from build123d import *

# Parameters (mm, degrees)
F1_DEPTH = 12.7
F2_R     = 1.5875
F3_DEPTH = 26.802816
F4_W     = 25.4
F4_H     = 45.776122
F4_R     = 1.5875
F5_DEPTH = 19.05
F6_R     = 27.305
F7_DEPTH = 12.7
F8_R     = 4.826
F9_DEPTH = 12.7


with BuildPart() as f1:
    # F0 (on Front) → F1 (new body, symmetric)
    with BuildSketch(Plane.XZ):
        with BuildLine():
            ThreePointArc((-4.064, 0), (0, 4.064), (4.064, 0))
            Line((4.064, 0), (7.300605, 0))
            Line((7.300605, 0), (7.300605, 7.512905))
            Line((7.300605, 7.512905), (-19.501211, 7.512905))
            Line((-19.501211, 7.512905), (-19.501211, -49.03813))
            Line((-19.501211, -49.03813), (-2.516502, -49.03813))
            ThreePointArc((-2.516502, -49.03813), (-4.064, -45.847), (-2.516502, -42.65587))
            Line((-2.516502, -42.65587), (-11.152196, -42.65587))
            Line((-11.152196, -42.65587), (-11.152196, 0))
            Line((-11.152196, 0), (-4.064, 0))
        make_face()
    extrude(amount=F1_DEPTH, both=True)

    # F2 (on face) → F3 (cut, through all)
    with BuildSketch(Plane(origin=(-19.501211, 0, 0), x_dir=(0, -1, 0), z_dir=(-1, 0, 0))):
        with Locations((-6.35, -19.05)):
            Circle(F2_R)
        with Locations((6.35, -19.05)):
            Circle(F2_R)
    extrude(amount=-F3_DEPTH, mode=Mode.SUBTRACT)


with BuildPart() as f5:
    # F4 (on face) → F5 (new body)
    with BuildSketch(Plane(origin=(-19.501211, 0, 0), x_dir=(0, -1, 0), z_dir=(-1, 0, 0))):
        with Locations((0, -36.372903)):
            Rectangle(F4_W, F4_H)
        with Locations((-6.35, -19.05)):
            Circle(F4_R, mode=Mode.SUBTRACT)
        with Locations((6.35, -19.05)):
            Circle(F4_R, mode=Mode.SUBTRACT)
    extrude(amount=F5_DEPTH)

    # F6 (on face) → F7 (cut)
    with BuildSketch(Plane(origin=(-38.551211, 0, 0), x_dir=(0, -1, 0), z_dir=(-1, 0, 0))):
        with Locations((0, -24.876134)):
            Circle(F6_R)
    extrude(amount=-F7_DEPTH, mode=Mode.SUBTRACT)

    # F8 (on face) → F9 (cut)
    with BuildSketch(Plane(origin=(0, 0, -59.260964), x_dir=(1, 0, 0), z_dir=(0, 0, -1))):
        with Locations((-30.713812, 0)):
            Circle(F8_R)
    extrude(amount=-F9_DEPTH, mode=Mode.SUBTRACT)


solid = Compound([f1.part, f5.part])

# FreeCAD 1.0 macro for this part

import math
import FreeCAD as App
import Part
import Sketcher
Q = App.Units.Quantity


def add_polygon(sketch, points):
    """Adds a closed chain of lines whose ends are joined by coincident constraints."""
    first, n = sketch.GeometryCount, len(points)
    for a, b in zip(points, points[1:] + points[:1]):
        sketch.addGeometry(Part.LineSegment(App.Vector(*a, 0), App.Vector(*b, 0)), False)
    for i in range(n):
        sketch.addConstraint(Sketcher.Constraint("Coincident", first + i, 2, first + (i + 1) % n, 1))

doc = App.newDocument("Part")
params = doc.addObject("Spreadsheet::Sheet", "Params")
for row, (alias, value) in enumerate([
    ("sketch1_radius", "0.16 in"),
    ("pad1_length", "1 in"),
    ("sketch2_diameter", "0.125 in"),
    ("sketch3_width", "1 in"),
    ("sketch3_diameter", "0.125 in"),
    ("pad2_length", "0.75 in"),
    ("sketch4_diameter", "2.15 in"),
    ("pocket2_length", "0.5 in"),
    ("sketch5_diameter", "0.38 in"),
    ("pocket3_length", "0.5 in"),
], start=1):
    params.set(f"A{row}", alias)
    params.set(f"B{row}", "=" + value)
    params.setAlias(f"B{row}", alias)

body = doc.addObject("PartDesign::Body", "Body")

sketch1 = body.newObject("Sketcher::SketchObject", "Sketch")
sketch1.AttachmentSupport = (doc.getObject("XZ_Plane"), [""])
sketch1.MapMode = "FlatFace"
sketch1.addGeometry([
    Part.ArcOfCircle(Part.Circle(App.Vector(0, 0, 0), App.Vector(0, 0, 1), 4.1), math.radians(0), math.radians(180)),
    Part.LineSegment(App.Vector(4.1, 0, 0), App.Vector(7.3, 0, 0)),
    Part.LineSegment(App.Vector(7.3, 0, 0), App.Vector(7.3, 7.5, 0)),
    Part.LineSegment(App.Vector(7.3, 7.5, 0), App.Vector(-19.5, 7.5, 0)),
    Part.LineSegment(App.Vector(-19.5, 7.5, 0), App.Vector(-19.5, -49, 0)),
    Part.LineSegment(App.Vector(-19.5, -49, 0), App.Vector(-2.5, -49, 0)),
    Part.ArcOfCircle(Part.Circle(App.Vector(0, -45.8, 0), App.Vector(0, 0, 1), 4.1), math.radians(128), math.radians(232)),
    Part.LineSegment(App.Vector(-2.5, -42.7, 0), App.Vector(-11.2, -42.7, 0)),
    Part.LineSegment(App.Vector(-11.2, -42.7, 0), App.Vector(-11.2, 0, 0)),
    Part.LineSegment(App.Vector(-11.2, 0, 0), App.Vector(-4.1, 0, 0)),
], False)
sketch1.addConstraint([
    Sketcher.Constraint("Coincident", 0, 1, 1, 1),
    Sketcher.Constraint("Coincident", 1, 2, 2, 1),
    Sketcher.Constraint("Coincident", 2, 2, 3, 1),
    Sketcher.Constraint("Coincident", 3, 2, 4, 1),
    Sketcher.Constraint("Coincident", 4, 2, 5, 1),
    Sketcher.Constraint("Coincident", 5, 2, 6, 2),
    Sketcher.Constraint("Coincident", 6, 1, 7, 1),
    Sketcher.Constraint("Coincident", 7, 2, 8, 1),
    Sketcher.Constraint("Coincident", 8, 2, 9, 1),
    Sketcher.Constraint("Coincident", 9, 2, 0, 2),
    Sketcher.Constraint("Horizontal", 1),
    Sketcher.Constraint("Vertical", 2),
    Sketcher.Constraint("Horizontal", 3),
    Sketcher.Constraint("Vertical", 4),
    Sketcher.Constraint("Horizontal", 5),
    Sketcher.Constraint("Horizontal", 7),
    Sketcher.Constraint("Vertical", 8),
    Sketcher.Constraint("Horizontal", 9),
    Sketcher.Constraint("Coincident", 0, 3, -1, 1),
    Sketcher.Constraint("Equal", 0, 6),
    Sketcher.Constraint("PointOnObject", 6, 3, -2),
    Sketcher.Constraint("PointOnObject", 0, 1, -1),
    Sketcher.Constraint("PointOnObject", 8, 2, -1),
    Sketcher.Constraint("Vertical", 5, 2, 6, 1),
    Sketcher.Constraint("Radius", 0, Q("0.16 in")),
    Sketcher.Constraint("DistanceY", 6, 3, -1, 1, Q("1.805 in")),
    Sketcher.Constraint("DistanceX", 5, 1, 5, 2, Q("16.984709 mm")),
    Sketcher.Constraint("DistanceY", 8, 1, 8, 2, Q("42.65587 mm")),
    Sketcher.Constraint("DistanceX", 8, 2, 1, 2, Q("18.452801 mm")),
    Sketcher.Constraint("DistanceX", 1, 1, 1, 2, Q("3.236605 mm")),
    Sketcher.Constraint("DistanceY", 2, 1, 2, 2, Q("7.512905 mm")),
])
sketch1.setExpression("Constraints[24]", "Params.sketch1_radius")
pad1 = body.newObject("PartDesign::Pad", "Pad")
pad1.Profile = sketch1
pad1.setExpression("Length", "Params.pad1_length")
pad1.Midplane = True

sketch2 = body.newObject("Sketcher::SketchObject", "Sketch001")
sketch2.AttachmentSupport = (doc.getObject("YZ_Plane"), [""])
sketch2.MapMode = "FlatFace"
sketch2.AttachmentOffset = App.Placement(App.Vector(0, 0, -19.501211), App.Rotation())
sketch2.addGeometry([
    Part.Circle(App.Vector(6.3, -19.1, 0), App.Vector(0, 0, 1), 1.6),
    Part.Circle(App.Vector(-6.3, -19.1, 0), App.Vector(0, 0, 1), 1.6),
], False)
sketch2.addConstraint([
    Sketcher.Constraint("Equal", 0, 1),
    Sketcher.Constraint("Symmetric", 0, 3, 1, 3, -2),
    Sketcher.Constraint("Diameter", 0, Q("0.125 in")),
    Sketcher.Constraint("DistanceX", 1, 3, 0, 3, Q("0.5 in")),
    Sketcher.Constraint("DistanceY", 0, 3, -1, 1, Q("0.75 in")),
])
sketch2.setExpression("Constraints[2]", "Params.sketch2_diameter")
pocket1 = body.newObject("PartDesign::Pocket", "Pocket")
pocket1.Profile = sketch2
pocket1.Type = "ThroughAll"
pocket1.Reversed = True
body2 = doc.addObject("PartDesign::Body", "Body001")

sketch3 = body2.newObject("Sketcher::SketchObject", "Sketch002")
sketch3.AttachmentSupport = (doc.getObject("YZ_Plane001"), [""])
sketch3.MapMode = "FlatFace"
sketch3.AttachmentOffset = App.Placement(App.Vector(0, 0, -19.501211), App.Rotation())
add_polygon(sketch3, [(12.7, -13.5), (12.7, -59.3), (-12.7, -59.3), (-12.7, -13.5)])
sketch3.addGeometry(Part.Circle(App.Vector(6.3, -19.1, 0), App.Vector(0, 0, 1), 1.6), False)
sketch3.addGeometry(Part.Circle(App.Vector(-6.3, -19.1, 0), App.Vector(0, 0, 1), 1.6), False)
sketch3.addConstraint([
    Sketcher.Constraint("Vertical", 0),
    Sketcher.Constraint("Horizontal", 1),
    Sketcher.Constraint("Vertical", 2),
    Sketcher.Constraint("Horizontal", 3),
    Sketcher.Constraint("Equal", 4, 5),
    Sketcher.Constraint("Symmetric", 4, 3, 5, 3, -2),
    Sketcher.Constraint("DistanceX", 1, 2, 1, 1, Q("1 in")),
    Sketcher.Constraint("Diameter", 4, Q("0.125 in")),
    Sketcher.Constraint("DistanceX", -1, 1, 0, 2, Q("0.5 in")),
    Sketcher.Constraint("DistanceX", 5, 3, 4, 3, Q("0.5 in")),
    Sketcher.Constraint("DistanceY", 4, 3, -1, 1, Q("0.75 in")),
    Sketcher.Constraint("DistanceY", 0, 2, 0, 1, Q("45.776122 mm")),
    Sketcher.Constraint("DistanceY", 5, 3, 2, 2, Q("5.565158 mm")),
])
sketch3.setExpression("Constraints[10]", "Params.sketch3_width")
sketch3.setExpression("Constraints[11]", "Params.sketch3_diameter")
pad2 = body2.newObject("PartDesign::Pad", "Pad001")
pad2.Profile = sketch3
pad2.setExpression("Length", "Params.pad2_length")
pad2.Reversed = True

sketch4 = body2.newObject("Sketcher::SketchObject", "Sketch003")
sketch4.AttachmentSupport = (doc.getObject("YZ_Plane001"), [""])
sketch4.MapMode = "FlatFace"
sketch4.AttachmentOffset = App.Placement(App.Vector(0, 0, -38.551211), App.Rotation())
sketch4.addGeometry(Part.Circle(App.Vector(0, -25, 0), App.Vector(0, 0, 1), 27), False)
sketch4.addConstraint([
    Sketcher.Constraint("PointOnObject", 0, 3, -2),
    Sketcher.Constraint("Diameter", 0, Q("2.15 in")),
    Sketcher.Constraint("DistanceY", 0, 3, -1, 1, Q("24.876134 mm")),
])
sketch4.setExpression("Constraints[1]", "Params.sketch4_diameter")
pocket2 = body2.newObject("PartDesign::Pocket", "Pocket001")
pocket2.Profile = sketch4
pocket2.setExpression("Length", "Params.pocket2_length")
pocket2.Reversed = True

sketch5 = body2.newObject("Sketcher::SketchObject", "Sketch004")
sketch5.AttachmentSupport = (doc.getObject("XY_Plane001"), [""])
sketch5.MapMode = "FlatFace"
sketch5.AttachmentOffset = App.Placement(App.Vector(0, 0, -59.260964), App.Rotation())
sketch5.addGeometry(Part.Circle(App.Vector(-30.7, 0, 0), App.Vector(0, 0, 1), 4.8), False)
sketch5.addConstraint([
    Sketcher.Constraint("PointOnObject", 0, 3, -1),
    Sketcher.Constraint("Diameter", 0, Q("0.38 in")),
    Sketcher.Constraint("DistanceX", 0, 3, -1, 1, Q("30.713812 mm")),
])
sketch5.setExpression("Constraints[1]", "Params.sketch5_diameter")
pocket3 = body2.newObject("PartDesign::Pocket", "Pocket002")
pocket3.Profile = sketch5
pocket3.setExpression("Length", "Params.pocket3_length")
pocket3.Reversed = True

doc.recompute()
